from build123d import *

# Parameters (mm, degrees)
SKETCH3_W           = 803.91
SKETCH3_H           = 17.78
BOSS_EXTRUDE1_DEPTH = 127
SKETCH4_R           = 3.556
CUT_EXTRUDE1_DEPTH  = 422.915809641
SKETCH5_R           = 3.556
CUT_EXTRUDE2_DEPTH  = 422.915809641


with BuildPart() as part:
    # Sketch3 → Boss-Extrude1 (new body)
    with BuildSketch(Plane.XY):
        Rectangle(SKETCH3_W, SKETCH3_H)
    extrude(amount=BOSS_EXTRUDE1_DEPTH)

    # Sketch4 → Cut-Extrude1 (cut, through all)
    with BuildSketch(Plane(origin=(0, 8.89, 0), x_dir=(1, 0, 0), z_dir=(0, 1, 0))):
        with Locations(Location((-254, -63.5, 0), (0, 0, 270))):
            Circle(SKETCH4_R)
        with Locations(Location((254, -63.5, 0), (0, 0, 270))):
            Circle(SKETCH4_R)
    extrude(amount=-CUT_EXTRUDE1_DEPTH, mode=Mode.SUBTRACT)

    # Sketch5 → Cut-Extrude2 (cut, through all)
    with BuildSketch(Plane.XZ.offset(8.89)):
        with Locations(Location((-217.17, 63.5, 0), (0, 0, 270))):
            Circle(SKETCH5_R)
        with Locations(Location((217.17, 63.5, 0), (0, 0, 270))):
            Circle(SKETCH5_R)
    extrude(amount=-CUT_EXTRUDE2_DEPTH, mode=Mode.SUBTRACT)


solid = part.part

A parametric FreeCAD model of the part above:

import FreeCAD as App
import Part
import Sketcher

V = App.Vector
Q = App.Units.Quantity


def add_polygon(sketch, points):
    """Adds a closed chain of lines whose ends are joined by coincident constraints."""
    first, n = sketch.GeometryCount, len(points)
    for a, b in zip(points, points[1:] + points[:1]):
        sketch.addGeometry(Part.LineSegment(App.Vector(*a, 0), App.Vector(*b, 0)), False)
    for i in range(n):
        sketch.addConstraint(Sketcher.Constraint("Coincident", first + i, 2, first + (i + 1) % n, 1))

doc = App.newDocument("Part")
params = doc.addObject("Spreadsheet::Sheet", "Params")
for row, (alias, value) in enumerate([
    ("sketch1_height", "0.7 in"),
    ("sketch1_width", "31.65 in"),
    ("pad1_length", "5 in"),
    ("sketch2_diameter", "0.28 in"),
    ("sketch3_diameter", "0.28 in"),
], start=1):
    params.set(f"A{row}", alias)
    params.set(f"B{row}", "=" + value)
    params.setAlias(f"B{row}", alias)

body = doc.addObject("PartDesign::Body", "Body")

sketch1 = body.newObject("Sketcher::SketchObject", "Sketch")
sketch1.AttachmentSupport = (doc.getObject("XY_Plane"), [""])
sketch1.MapMode = "FlatFace"
add_polygon(sketch1, [(-401.955, 8.89), (-401.955, -8.89), (401.955, -8.89), (401.955, 8.89)])
sketch1.addConstraint([
    Sketcher.Constraint("Vertical", 0),
    Sketcher.Constraint("Horizontal", 1),
    Sketcher.Constraint("Vertical", 2),
    Sketcher.Constraint("Horizontal", 3),
    Sketcher.Constraint("Symmetric", 0, 2, 2, 2, -1, 1),
    Sketcher.Constraint("DistanceY", 0, 2, 0, 1, Q("0.7 in")),
    Sketcher.Constraint("DistanceX", 1, 1, 1, 2, Q("31.65 in")),
])
sketch1.setExpression("Constraints[9]", "Params.sketch1_height")
sketch1.setExpression("Constraints[10]", "Params.sketch1_width")
pad1 = body.newObject("PartDesign::Pad", "Pad")
pad1.Profile = sketch1
pad1.setExpression("Length", "Params.pad1_length")

sketch2 = body.newObject("Sketcher::SketchObject", "Sketch001")
sketch2.AttachmentSupport = (doc.getObject("XZ_Plane"), [""])
sketch2.MapMode = "FlatFace"
sketch2.AttachmentOffset = App.Placement(V(0, 0, -0.35 * 25.4), App.Rotation())
sketch2.addGeometry([
    Part.Circle(V(-254, 63.5, 0), V(0, 0, 1), 3.556),
    Part.Circle(V(254, 63.5, 0), V(0, 0, 1), 3.556),
], False)
sketch2.addConstraint([
    Sketcher.Constraint("Equal", 0, 1),
    Sketcher.Constraint("Symmetric", 0, 3, 1, 3, -2),
    Sketcher.Constraint("Diameter", 0, Q("0.28 in")),
    Sketcher.Constraint("DistanceX", 0, 3, -1, 1, Q("10 in")),
    Sketcher.Constraint("DistanceY", -1, 1, 0, 3, Q("2.5 in")),
])
sketch2.setExpression("Constraints[2]", "Params.sketch2_diameter")
pocket1 = body.newObject("PartDesign::Pocket", "Pocket")
pocket1.Profile = sketch2
pocket1.Type = "ThroughAll"
pocket1.Reversed = True

sketch3 = body.newObject("Sketcher::SketchObject", "Sketch002")
sketch3.AttachmentSupport = (doc.getObject("XZ_Plane"), [""])
sketch3.MapMode = "FlatFace"
sketch3.AttachmentOffset = App.Placement(V(0, 0, 0.35 * 25.4), App.Rotation())
sketch3.addGeometry([
    Part.Circle(V(-217.17, 63.5, 0), V(0, 0, 1), 3.556),
    Part.Circle(V(217.17, 63.5, 0), V(0, 0, 1), 3.556),
], False)
sketch3.addConstraint([
    Sketcher.Constraint("Equal", 0, 1),
    Sketcher.Constraint("Symmetric", 0, 3, 1, 3, -2),
    Sketcher.Constraint("Diameter", 0, Q("0.28 in")),
    Sketcher.Constraint("DistanceY", -1, 1, 0, 3, Q("2.5 in")),
    Sketcher.Constraint("DistanceX", 0, 3, 1, 3, Q("17.1 in")),
])
sketch3.setExpression("Constraints[2]", "Params.sketch3_diameter")
pocket2 = body.newObject("PartDesign::Pocket", "Pocket001")
pocket2.Profile = sketch3
pocket2.Type = "ThroughAll"

doc.recompute()
